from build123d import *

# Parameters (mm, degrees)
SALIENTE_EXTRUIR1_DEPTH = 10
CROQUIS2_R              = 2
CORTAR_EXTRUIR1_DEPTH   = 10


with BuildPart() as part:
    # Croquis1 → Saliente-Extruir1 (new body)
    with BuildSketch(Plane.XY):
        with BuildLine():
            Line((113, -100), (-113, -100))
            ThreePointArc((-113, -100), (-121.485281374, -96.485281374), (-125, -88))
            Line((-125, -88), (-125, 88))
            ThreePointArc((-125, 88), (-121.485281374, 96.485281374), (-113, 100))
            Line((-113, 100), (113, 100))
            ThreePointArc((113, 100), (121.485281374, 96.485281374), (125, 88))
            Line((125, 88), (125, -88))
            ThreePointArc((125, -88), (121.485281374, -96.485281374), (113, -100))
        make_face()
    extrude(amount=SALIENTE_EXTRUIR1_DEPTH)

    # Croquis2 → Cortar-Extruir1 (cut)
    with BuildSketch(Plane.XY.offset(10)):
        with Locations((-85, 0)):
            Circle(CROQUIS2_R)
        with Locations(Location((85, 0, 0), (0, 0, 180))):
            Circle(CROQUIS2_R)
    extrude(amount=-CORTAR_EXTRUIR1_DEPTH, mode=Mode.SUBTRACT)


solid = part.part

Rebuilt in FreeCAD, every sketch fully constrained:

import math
import FreeCAD as App
import Part
import Sketcher
Q = App.Units.Quantity

doc = App.newDocument("Part")
body = doc.addObject("PartDesign::Body", "Body")

sketch1 = doc.addObject("Sketcher::SketchObject", "Sketch")
body.addObject(sketch1)
sketch1.AttachmentSupport = (doc.XY_Plane, [""])
sketch1.MapMode = "FlatFace"
sketch1.addGeometry([
    Part.LineSegment(App.Vector(-113, -100, 0), App.Vector(113, -100, 0)),
    Part.ArcOfCircle(Part.Circle(App.Vector(113, -88, 0), App.Vector(0, 0, 1), 12), math.radians(-90), math.radians(0)),
    Part.LineSegment(App.Vector(125, -88, 0), App.Vector(125, 88, 0)),
    Part.ArcOfCircle(Part.Circle(App.Vector(113, 88, 0), App.Vector(0, 0, 1), 12), math.radians(0), math.radians(90)),
    Part.LineSegment(App.Vector(113, 100, 0), App.Vector(-113, 100, 0)),
    Part.ArcOfCircle(Part.Circle(App.Vector(-113, 88, 0), App.Vector(0, 0, 1), 12), math.radians(90), math.radians(180)),
    Part.LineSegment(App.Vector(-125, 88, 0), App.Vector(-125, -88, 0)),
    Part.ArcOfCircle(Part.Circle(App.Vector(-113, -88, 0), App.Vector(0, 0, 1), 12), math.radians(-180), math.radians(-90)),
], False)
sketch1.addConstraint([
    Sketcher.Constraint("Tangent", 0, 2, 1, 1),
    Sketcher.Constraint("Tangent", 1, 2, 2, 1),
    Sketcher.Constraint("Tangent", 2, 2, 3, 1),
    Sketcher.Constraint("Tangent", 3, 2, 4, 1),
    Sketcher.Constraint("Tangent", 4, 2, 5, 1),
    Sketcher.Constraint("Tangent", 5, 2, 6, 1),
    Sketcher.Constraint("Tangent", 6, 2, 7, 1),
    Sketcher.Constraint("Tangent", 7, 2, 0, 1),
    Sketcher.Constraint("Horizontal", 0),
    Sketcher.Constraint("Vertical", 2),
    Sketcher.Constraint("Horizontal", 4),
    Sketcher.Constraint("Vertical", 6),
    Sketcher.Constraint("Equal", 1, 3),
    Sketcher.Constraint("Equal", 3, 5),
    Sketcher.Constraint("Equal", 5, 7),
    Sketcher.Constraint("Symmetric", 1, 3, 5, 3, -1, 1),
    Sketcher.Constraint("Radius", 1, Q("12 mm")),
    Sketcher.Constraint("DistanceX", 0, 1, 0, 2, Q("226 mm")),
    Sketcher.Constraint("DistanceY", 2, 1, 2, 2, Q("176 mm")),
])
pad1 = doc.addObject("PartDesign::Pad", "Pad")
body.addObject(pad1)
pad1.Profile = sketch1
pad1.Length = 10

sketch2 = doc.addObject("Sketcher::SketchObject", "Sketch001")
body.addObject(sketch2)
sketch2.AttachmentSupport = (doc.XY_Plane, [""])
sketch2.MapMode = "FlatFace"
sketch2.AttachmentOffset = App.Placement(App.Vector(0, 0, 10), App.Rotation())
sketch2.addGeometry([
    Part.Circle(App.Vector(-85, 0, 0), App.Vector(0, 0, 1), 2),
    Part.Circle(App.Vector(85, 0, 0), App.Vector(0, 0, 1), 2),
], False)
sketch2.addConstraint([
    Sketcher.Constraint("Equal", 0, 1),
    Sketcher.Constraint("Symmetric", 0, 3, 1, 3, -1, 1),
    Sketcher.Constraint("PointOnObject", 0, 3, -1),
    Sketcher.Constraint("Diameter", 0, Q("4 mm")),
    Sketcher.Constraint("DistanceX", 0, 3, -1, 1, Q("85 mm")),
])
pocket1 = doc.addObject("PartDesign::Pocket", "Pocket")
body.addObject(pocket1)
pocket1.Profile = sketch2
pocket1.Length = 10

doc.recompute()
